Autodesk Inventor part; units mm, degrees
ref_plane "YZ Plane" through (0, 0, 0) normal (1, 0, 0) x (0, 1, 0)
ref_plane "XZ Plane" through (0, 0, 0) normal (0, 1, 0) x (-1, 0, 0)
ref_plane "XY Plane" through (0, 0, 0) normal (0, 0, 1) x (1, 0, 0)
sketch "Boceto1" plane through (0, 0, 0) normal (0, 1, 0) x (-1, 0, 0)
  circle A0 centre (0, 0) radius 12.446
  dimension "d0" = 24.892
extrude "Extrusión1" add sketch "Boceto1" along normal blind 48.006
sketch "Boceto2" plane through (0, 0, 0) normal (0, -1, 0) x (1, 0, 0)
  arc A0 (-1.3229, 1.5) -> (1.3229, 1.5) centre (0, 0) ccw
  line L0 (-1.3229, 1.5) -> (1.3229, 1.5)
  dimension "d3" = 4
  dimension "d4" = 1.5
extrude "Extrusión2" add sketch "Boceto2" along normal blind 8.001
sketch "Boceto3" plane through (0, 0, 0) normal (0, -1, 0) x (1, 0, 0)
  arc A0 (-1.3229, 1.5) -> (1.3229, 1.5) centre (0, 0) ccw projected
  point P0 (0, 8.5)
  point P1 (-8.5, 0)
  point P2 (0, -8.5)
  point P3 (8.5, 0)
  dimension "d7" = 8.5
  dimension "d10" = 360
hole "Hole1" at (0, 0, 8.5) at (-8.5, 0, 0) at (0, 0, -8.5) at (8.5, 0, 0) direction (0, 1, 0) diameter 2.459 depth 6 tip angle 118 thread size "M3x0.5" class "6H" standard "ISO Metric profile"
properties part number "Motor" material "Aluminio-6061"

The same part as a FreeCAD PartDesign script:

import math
import FreeCAD as App
import Part
import Sketcher

V = App.Vector
Q = App.Units.Quantity

doc = App.newDocument("Part")
body = doc.addObject("PartDesign::Body", "Body")

# Sketch on XZ plane
sketch1 = doc.addObject("Sketcher::SketchObject", "Sketch")
body.addObject(sketch1)
sketch1.AttachmentSupport = (doc.XZ_Plane, [""])
sketch1.MapMode = "FlatFace"
sketch1.addGeometry(Part.Circle(V(0, 0, 0), V(0, 0, 1), 12), False)
sketch1.addConstraint([
    Sketcher.Constraint("Coincident", 0, 3, -1, 1),
    Sketcher.Constraint("Diameter", 0, Q("0.98 in")),
])
pad1 = doc.addObject("PartDesign::Pad", "Pad")
body.addObject(pad1)
pad1.Profile = sketch1
pad1.Length = Q("1.89 in")
pad1.Reversed = True

# Sketch on XZ plane
sketch2 = doc.addObject("Sketcher::SketchObject", "Sketch001")
body.addObject(sketch2)
sketch2.AttachmentSupport = (doc.XZ_Plane, [""])
sketch2.MapMode = "FlatFace"
sketch2.addGeometry([
    Part.LineSegment(V(1.3, 1.5, 0), V(-1.3, 1.5, 0)),
    Part.ArcOfCircle(Part.Circle(V(0, 0, 0), V(0, 0, 1), 2), math.radians(131), math.radians(409)),
], False)
sketch2.addConstraint([
    Sketcher.Constraint("Coincident", 0, 1, 1, 2),
    Sketcher.Constraint("Coincident", 1, 1, 0, 2),
    Sketcher.Constraint("Horizontal", 0),
    Sketcher.Constraint("Coincident", 1, 3, -1, 1),
    Sketcher.Constraint("Radius", 1, 2.0),
    Sketcher.Constraint("DistanceY", -1, 1, 0, 1, 1.5),
])
pad2 = doc.addObject("PartDesign::Pad", "Pad001")
body.addObject(pad2)
pad2.Profile = sketch2
pad2.Length = Q("0.315 in")

# Sketch on XZ plane
sketch3 = doc.addObject("Sketcher::SketchObject", "Sketch002")
body.addObject(sketch3)
sketch3.AttachmentSupport = (doc.XZ_Plane, [""])
sketch3.MapMode = "FlatFace"
sketch3.addGeometry([
    Part.Circle(V(0, 8.5, 0), V(0, 0, 1), 1.2),
    Part.Circle(V(-8.5, 0, 0), V(0, 0, 1), 1.2),
    Part.Circle(V(0, -8.5, 0), V(0, 0, 1), 1.2),
    Part.Circle(V(8.5, 0, 0), V(0, 0, 1), 1.2),
], False)
sketch3.addConstraint([
    Sketcher.Constraint("Equal", 0, 1),
    Sketcher.Constraint("Equal", 1, 2),
    Sketcher.Constraint("Equal", 2, 3),
    Sketcher.Constraint("Symmetric", 0, 3, 2, 3, -1, 1),
    Sketcher.Constraint("Symmetric", 1, 3, 3, 3, -1, 1),
    Sketcher.Constraint("PointOnObject", 0, 3, -2),
    Sketcher.Constraint("PointOnObject", 1, 3, -1),
    Sketcher.Constraint("Diameter", 0, Q("0.0968 in")),
    Sketcher.Constraint("DistanceY", 2, 3, 0, 3, Q("0.6693 in")),
    Sketcher.Constraint("DistanceX", 1, 3, 3, 3, Q("0.6693 in")),
])
doc.recompute()
hole = doc.addObject("PartDesign::Hole", "Hole")
body.addObject(hole)
hole.Profile = sketch3
hole.ThreadType = "None"
hole.Diameter = Q("0.096811 in")
hole.DepthType = "Dimension"
hole.Depth = 6
hole.DrillPoint = "Angled"
hole.DrillPointAngle = 118

doc.recompute()
